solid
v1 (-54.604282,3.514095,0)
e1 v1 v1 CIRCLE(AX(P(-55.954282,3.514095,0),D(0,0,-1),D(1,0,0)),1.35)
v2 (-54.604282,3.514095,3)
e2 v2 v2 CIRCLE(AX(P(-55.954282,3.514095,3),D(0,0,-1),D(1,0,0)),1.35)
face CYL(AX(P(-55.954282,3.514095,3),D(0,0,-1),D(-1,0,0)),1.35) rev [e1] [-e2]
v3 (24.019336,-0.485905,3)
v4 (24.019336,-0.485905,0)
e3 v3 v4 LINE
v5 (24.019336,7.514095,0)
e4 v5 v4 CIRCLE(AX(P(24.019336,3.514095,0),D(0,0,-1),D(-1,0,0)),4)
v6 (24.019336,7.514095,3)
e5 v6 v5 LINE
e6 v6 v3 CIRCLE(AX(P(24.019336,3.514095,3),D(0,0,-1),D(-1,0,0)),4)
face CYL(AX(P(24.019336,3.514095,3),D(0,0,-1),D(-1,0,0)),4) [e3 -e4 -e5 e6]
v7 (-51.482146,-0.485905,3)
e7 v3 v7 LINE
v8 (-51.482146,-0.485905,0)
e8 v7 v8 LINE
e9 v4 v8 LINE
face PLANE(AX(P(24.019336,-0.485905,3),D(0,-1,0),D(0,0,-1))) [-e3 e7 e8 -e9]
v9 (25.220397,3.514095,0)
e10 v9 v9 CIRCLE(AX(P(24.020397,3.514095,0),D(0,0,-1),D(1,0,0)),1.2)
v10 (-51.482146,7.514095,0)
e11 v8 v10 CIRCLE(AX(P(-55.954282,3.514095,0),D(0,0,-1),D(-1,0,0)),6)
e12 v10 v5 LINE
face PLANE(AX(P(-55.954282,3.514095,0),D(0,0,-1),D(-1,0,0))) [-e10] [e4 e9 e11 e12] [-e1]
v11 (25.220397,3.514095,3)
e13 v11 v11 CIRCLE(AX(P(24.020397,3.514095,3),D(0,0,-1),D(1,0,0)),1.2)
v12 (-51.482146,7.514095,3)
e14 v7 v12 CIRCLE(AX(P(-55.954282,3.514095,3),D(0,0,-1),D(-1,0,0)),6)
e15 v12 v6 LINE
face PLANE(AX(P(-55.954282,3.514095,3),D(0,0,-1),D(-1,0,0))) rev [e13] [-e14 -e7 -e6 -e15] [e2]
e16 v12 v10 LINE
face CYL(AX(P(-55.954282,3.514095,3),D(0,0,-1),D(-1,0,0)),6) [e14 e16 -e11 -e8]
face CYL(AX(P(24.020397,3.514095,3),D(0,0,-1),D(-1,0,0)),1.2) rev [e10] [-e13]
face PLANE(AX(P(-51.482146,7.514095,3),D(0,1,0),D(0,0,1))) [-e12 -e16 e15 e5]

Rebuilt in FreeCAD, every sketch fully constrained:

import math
import FreeCAD as App
import Part
import Sketcher
from FreeCAD import Vector
Q = App.Units.Quantity

doc = App.newDocument("Part")
body = doc.addObject("PartDesign::Body", "Body")

# Sketch on XY plane
sketch1 = doc.addObject("Sketcher::SketchObject", "Sketch")
body.addObject(sketch1)
sketch1.AttachmentSupport = (doc.XY_Plane, [""])
sketch1.MapMode = "FlatFace"
sketch1.addGeometry([
    Part.LineSegment(Vector(-51.5, 7.5, 0), Vector(24, 7.5, 0)),  # 0
    Part.ArcOfCircle(Part.Circle(Vector(24, 3.5, 0), Vector(0, 0, 1), 4), math.radians(-90), math.radians(90)),  # 1
    Part.LineSegment(Vector(24, -0.5, 0), Vector(-51.5, -0.5, 0)),  # 2
    Part.ArcOfCircle(Part.Circle(Vector(-56, 3.5, 0), Vector(0, 0, 1), 6), math.radians(42), math.radians(318)),  # 3
    Part.Circle(Vector(24, 3.5, 0), Vector(0, 0, 1), 1.2),  # 4
    Part.Circle(Vector(-56, 3.5, 0), Vector(0, 0, 1), 1.4),  # 5
], False)
sketch1.addConstraint([
    Sketcher.Constraint("Tangent", 0, 2, 1, 2),
    Sketcher.Constraint("Tangent", 1, 1, 2, 1),
    Sketcher.Constraint("Coincident", 2, 2, 3, 2),
    Sketcher.Constraint("Coincident", 3, 1, 0, 1),
    Sketcher.Constraint("Horizontal", 0),
    Sketcher.Constraint("Horizontal", 2),
    Sketcher.Constraint("Coincident", 5, 3, 3, 3),
    Sketcher.Constraint("Horizontal", 1, 3, 3, 3),
    Sketcher.Constraint("Horizontal", 3, 3, 4, 3),
    Sketcher.Constraint("Radius", 1, Q("4 mm")),
    Sketcher.Constraint("Radius", 3, Q("6 mm")),
    Sketcher.Constraint("Diameter", 4, Q("2.4 mm")),
    Sketcher.Constraint("Diameter", 5, Q("2.7 mm")),
    Sketcher.Constraint("DistanceX", 0, 1, 0, 2, Q("75.501482 mm")),
    Sketcher.Constraint("DistanceX", 3, 3, -1, 1, Q("55.954282 mm")),
    Sketcher.Constraint("DistanceX", 1, 3, 4, 3, Q("0.00106 mm")),
    Sketcher.Constraint("DistanceY", -1, 1, 1, 3, Q("3.514095 mm")),
])
pad1 = doc.addObject("PartDesign::Pad", "Pad")
body.addObject(pad1)
pad1.Profile = sketch1
pad1.Length = 3

doc.recompute()
